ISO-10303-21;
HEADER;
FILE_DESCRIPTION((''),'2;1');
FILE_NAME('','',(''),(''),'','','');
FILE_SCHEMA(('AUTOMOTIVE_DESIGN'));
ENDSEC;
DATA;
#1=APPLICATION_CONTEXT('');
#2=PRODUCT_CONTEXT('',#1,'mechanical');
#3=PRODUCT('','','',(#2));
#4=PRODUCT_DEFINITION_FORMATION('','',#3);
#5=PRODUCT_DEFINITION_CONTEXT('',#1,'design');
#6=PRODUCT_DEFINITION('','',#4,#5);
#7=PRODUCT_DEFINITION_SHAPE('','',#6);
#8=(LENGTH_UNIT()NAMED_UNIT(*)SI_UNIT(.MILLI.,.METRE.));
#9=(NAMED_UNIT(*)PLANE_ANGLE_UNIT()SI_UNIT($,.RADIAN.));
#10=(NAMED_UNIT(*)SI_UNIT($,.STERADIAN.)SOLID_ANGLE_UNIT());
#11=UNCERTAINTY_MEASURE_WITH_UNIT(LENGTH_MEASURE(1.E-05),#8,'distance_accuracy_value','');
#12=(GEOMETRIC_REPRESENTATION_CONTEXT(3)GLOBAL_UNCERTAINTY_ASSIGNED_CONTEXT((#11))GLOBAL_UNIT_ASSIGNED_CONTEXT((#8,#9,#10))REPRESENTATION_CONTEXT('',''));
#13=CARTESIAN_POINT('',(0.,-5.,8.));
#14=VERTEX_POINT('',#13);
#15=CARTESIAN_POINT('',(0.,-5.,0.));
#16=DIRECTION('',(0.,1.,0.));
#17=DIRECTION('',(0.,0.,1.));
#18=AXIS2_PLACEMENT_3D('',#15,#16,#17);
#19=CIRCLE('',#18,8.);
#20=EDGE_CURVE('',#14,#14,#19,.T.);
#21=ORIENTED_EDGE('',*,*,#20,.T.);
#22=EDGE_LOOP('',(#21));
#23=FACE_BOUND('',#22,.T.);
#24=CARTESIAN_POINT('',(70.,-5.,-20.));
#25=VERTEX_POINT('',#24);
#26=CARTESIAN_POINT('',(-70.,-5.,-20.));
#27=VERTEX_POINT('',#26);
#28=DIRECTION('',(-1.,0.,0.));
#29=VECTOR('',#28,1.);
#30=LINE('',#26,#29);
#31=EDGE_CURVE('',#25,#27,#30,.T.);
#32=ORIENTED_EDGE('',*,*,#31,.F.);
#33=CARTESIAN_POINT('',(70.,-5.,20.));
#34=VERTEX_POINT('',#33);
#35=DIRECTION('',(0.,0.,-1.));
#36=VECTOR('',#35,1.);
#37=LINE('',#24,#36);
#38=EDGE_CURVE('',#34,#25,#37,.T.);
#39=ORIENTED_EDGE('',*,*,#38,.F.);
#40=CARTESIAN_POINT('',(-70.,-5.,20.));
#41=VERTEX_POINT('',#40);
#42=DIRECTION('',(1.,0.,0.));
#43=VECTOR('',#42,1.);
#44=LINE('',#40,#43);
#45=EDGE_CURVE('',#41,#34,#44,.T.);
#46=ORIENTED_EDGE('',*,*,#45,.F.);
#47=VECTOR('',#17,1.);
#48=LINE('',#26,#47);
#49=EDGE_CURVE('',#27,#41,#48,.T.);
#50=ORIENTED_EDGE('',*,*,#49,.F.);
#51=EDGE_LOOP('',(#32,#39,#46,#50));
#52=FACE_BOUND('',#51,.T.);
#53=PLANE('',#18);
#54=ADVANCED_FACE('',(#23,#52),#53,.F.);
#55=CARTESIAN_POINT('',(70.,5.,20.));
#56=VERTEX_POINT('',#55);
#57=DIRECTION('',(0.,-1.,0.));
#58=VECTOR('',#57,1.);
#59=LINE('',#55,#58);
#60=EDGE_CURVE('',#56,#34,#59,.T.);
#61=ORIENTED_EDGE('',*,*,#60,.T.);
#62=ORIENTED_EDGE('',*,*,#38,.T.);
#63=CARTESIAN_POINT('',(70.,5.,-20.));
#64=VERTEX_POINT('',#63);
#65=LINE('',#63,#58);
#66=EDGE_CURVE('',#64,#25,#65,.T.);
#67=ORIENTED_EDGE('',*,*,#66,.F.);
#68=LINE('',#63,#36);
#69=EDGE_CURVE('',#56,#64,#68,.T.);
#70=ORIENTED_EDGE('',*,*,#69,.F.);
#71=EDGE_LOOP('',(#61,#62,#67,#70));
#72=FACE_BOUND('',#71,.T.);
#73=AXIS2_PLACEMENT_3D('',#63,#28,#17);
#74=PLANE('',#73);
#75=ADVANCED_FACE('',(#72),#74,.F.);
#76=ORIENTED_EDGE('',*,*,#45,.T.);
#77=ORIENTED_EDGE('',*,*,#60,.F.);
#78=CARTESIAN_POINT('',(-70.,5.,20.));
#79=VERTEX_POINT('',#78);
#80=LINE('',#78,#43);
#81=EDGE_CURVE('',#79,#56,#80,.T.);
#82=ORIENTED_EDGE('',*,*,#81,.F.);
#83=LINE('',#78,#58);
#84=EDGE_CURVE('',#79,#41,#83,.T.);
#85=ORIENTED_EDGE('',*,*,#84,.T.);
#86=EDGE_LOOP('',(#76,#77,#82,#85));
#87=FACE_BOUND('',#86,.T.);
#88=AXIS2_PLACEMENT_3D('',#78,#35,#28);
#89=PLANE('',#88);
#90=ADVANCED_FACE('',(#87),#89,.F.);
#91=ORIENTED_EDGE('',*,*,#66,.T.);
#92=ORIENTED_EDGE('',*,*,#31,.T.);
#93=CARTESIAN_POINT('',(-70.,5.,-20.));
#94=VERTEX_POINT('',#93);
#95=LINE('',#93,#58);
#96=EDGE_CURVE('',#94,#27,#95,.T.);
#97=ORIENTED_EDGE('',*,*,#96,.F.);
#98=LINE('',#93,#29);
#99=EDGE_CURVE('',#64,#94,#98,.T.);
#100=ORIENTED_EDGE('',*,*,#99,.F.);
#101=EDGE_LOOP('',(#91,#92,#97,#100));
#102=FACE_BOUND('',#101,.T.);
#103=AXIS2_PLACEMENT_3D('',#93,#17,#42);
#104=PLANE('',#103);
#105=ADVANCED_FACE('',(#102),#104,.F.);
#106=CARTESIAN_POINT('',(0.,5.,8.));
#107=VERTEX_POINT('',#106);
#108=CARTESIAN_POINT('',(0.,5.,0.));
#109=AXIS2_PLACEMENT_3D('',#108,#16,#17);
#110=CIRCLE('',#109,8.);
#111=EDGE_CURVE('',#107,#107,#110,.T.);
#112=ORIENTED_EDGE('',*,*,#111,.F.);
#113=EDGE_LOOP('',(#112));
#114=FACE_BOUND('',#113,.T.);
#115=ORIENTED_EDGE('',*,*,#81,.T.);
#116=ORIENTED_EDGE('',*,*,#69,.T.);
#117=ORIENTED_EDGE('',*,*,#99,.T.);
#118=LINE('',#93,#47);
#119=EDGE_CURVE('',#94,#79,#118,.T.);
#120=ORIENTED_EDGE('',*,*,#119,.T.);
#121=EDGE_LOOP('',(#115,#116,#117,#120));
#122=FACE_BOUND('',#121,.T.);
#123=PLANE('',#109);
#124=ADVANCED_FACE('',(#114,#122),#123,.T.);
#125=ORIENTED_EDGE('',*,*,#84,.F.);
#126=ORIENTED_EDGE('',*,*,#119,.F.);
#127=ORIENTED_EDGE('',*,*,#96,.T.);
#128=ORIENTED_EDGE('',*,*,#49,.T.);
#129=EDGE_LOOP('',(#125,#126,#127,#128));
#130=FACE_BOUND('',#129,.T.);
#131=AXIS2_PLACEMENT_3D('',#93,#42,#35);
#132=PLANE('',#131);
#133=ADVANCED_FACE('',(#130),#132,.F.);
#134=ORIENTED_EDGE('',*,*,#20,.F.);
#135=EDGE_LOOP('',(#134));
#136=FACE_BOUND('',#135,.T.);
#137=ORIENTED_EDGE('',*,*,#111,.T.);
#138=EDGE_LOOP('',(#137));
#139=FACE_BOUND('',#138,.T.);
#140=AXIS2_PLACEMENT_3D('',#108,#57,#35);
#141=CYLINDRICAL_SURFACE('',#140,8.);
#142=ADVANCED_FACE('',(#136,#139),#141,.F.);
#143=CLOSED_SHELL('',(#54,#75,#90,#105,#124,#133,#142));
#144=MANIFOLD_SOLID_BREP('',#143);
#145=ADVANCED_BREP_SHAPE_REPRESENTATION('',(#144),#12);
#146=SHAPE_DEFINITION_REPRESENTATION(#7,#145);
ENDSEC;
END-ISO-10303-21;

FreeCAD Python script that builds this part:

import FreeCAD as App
import Part
import Sketcher
from FreeCAD import Vector

doc = App.newDocument("Part")
body = doc.addObject("PartDesign::Body", "Body")

# Sketch on XZ plane
sketch1 = doc.addObject("Sketcher::SketchObject", "Sketch")
body.addObject(sketch1)
sketch1.AttachmentSupport = (doc.XZ_Plane, [""])
sketch1.MapMode = "FlatFace"
sketch1.addGeometry([
    Part.LineSegment(Vector(-70, -20, 0), Vector(-70, 20, 0)),  # 0
    Part.LineSegment(Vector(-70, 20, 0), Vector(70, 20, 0)),  # 1
    Part.LineSegment(Vector(70, 20, 0), Vector(70, -20, 0)),  # 2
    Part.LineSegment(Vector(70, -20, 0), Vector(-70, -20, 0)),  # 3
    Part.Circle(Vector(0, 0, 0), Vector(0, 0, 1), 8),  # 4
], False)
sketch1.addConstraint([
    Sketcher.Constraint("Coincident", 0, 2, 1, 1),
    Sketcher.Constraint("Coincident", 1, 2, 2, 1),
    Sketcher.Constraint("Coincident", 2, 2, 3, 1),
    Sketcher.Constraint("Coincident", 3, 2, 0, 1),
    Sketcher.Constraint("Vertical", 0),
    Sketcher.Constraint("Horizontal", 1),
    Sketcher.Constraint("Vertical", 2),
    Sketcher.Constraint("Horizontal", 3),
    Sketcher.Constraint("Coincident", 4, 3, -1, 1),
    Sketcher.Constraint("Symmetric", 0, 2, 2, 2, -1, 1),
    Sketcher.Constraint("Diameter", 4, 16.0),
    Sketcher.Constraint("DistanceX", 1, 1, 1, 2, 140.0),
    Sketcher.Constraint("DistanceY", 0, 1, 0, 2, 40.0),
])
pad1 = doc.addObject("PartDesign::Pad", "Pad")
body.addObject(pad1)
pad1.Profile = sketch1
pad1.Length = 10
pad1.Midplane = True

doc.recompute()
